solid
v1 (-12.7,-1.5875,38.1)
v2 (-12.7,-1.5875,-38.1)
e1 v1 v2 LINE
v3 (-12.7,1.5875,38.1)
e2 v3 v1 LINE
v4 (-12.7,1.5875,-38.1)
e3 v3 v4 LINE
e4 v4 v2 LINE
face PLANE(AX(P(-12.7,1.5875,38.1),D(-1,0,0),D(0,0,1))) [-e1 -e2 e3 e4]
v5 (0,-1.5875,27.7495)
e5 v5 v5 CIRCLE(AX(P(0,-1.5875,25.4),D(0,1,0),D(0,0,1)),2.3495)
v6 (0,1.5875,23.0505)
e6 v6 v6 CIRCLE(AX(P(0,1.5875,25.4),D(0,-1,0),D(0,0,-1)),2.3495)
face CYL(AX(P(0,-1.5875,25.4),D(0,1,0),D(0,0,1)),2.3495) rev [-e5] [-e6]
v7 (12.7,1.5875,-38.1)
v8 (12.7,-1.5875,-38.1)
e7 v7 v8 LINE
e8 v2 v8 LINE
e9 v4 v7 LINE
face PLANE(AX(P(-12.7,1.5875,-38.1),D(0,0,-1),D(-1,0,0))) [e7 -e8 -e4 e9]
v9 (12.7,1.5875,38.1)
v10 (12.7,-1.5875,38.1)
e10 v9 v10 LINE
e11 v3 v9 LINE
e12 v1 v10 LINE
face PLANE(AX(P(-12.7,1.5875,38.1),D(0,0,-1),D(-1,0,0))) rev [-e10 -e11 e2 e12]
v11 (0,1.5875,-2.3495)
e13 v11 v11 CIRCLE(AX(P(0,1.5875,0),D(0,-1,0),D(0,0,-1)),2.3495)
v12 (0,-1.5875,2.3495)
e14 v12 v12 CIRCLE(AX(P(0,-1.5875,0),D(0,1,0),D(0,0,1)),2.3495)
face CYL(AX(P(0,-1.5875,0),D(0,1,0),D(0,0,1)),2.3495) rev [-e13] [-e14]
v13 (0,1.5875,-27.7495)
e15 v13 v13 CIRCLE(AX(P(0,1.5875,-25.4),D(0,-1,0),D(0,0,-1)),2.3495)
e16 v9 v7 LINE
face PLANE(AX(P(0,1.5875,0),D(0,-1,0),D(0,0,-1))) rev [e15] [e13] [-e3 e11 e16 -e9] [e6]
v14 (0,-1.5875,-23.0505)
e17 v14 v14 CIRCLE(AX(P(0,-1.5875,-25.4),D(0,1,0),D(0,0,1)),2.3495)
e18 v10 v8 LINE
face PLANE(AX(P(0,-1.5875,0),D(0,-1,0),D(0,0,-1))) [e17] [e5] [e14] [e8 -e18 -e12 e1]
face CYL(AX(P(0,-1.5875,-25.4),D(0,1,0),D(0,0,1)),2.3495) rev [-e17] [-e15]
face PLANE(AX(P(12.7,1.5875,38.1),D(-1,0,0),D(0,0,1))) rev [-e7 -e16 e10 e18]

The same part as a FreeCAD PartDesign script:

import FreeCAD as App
import Part
import Sketcher

V = App.Vector
Q = App.Units.Quantity

doc = App.newDocument("Part")
body = doc.addObject("PartDesign::Body", "Body")

# Sketch on XZ plane
sketch1 = body.newObject("Sketcher::SketchObject", "Sketch")
sketch1.AttachmentSupport = (doc.getObject("XZ_Plane"), [""])
sketch1.MapMode = "FlatFace"
sketch1.addGeometry([
    Part.LineSegment(V(-12.7, -38.1, 0), V(-12.7, 38.1, 0)),
    Part.LineSegment(V(-12.7, 38.1, 0), V(12.7, 38.1, 0)),
    Part.LineSegment(V(12.7, 38.1, 0), V(12.7, -38.1, 0)),
    Part.LineSegment(V(12.7, -38.1, 0), V(-12.7, -38.1, 0)),
], False)
sketch1.addConstraint([
    Sketcher.Constraint("Coincident", 0, 2, 1, 1),
    Sketcher.Constraint("Coincident", 1, 2, 2, 1),
    Sketcher.Constraint("Coincident", 2, 2, 3, 1),
    Sketcher.Constraint("Coincident", 3, 2, 0, 1),
    Sketcher.Constraint("Vertical", 0),
    Sketcher.Constraint("Horizontal", 1),
    Sketcher.Constraint("Vertical", 2),
    Sketcher.Constraint("Horizontal", 3),
    Sketcher.Constraint("Symmetric", 0, 2, 2, 2, -1, 1),
    Sketcher.Constraint("DistanceX", 1, 1, 1, 2, Q("1 in")),
    Sketcher.Constraint("DistanceY", 0, 1, 0, 2, Q("3 in")),
])
pad1 = body.newObject("PartDesign::Pad", "Pad")
pad1.Profile = sketch1
pad1.Length = Q("0.125 in")
pad1.Midplane = True

# Sketch on XZ plane
sketch2 = body.newObject("Sketcher::SketchObject", "Sketch001")
sketch2.AttachmentSupport = (doc.getObject("XZ_Plane"), [""])
sketch2.MapMode = "FlatFace"
sketch2.AttachmentOffset = App.Placement(V(0, 0, -0.0625 * 25.4), App.Rotation())
sketch2.addGeometry([
    Part.Circle(V(0, 25.4, 0), V(0, 0, 1), 2.3495),
    Part.Circle(V(0, 0, 0), V(0, 0, 1), 2.3495),
    Part.Circle(V(0, -25.4, 0), V(0, 0, 1), 2.3495),
], False)
sketch2.addConstraint([
    Sketcher.Constraint("Coincident", 1, 3, -1, 1),
    Sketcher.Constraint("Equal", 0, 1),
    Sketcher.Constraint("Equal", 1, 2),
    Sketcher.Constraint("Symmetric", 0, 3, 2, 3, -1, 1),
    Sketcher.Constraint("PointOnObject", 0, 3, -2),
    Sketcher.Constraint("Diameter", 0, Q("0.185 in")),
    Sketcher.Constraint("DistanceY", -1, 1, 0, 3, Q("1 in")),
])
pocket1 = body.newObject("PartDesign::Pocket", "Pocket")
pocket1.Profile = sketch2
pocket1.Type = "ThroughAll"
pocket1.Midplane = True

doc.recompute()
